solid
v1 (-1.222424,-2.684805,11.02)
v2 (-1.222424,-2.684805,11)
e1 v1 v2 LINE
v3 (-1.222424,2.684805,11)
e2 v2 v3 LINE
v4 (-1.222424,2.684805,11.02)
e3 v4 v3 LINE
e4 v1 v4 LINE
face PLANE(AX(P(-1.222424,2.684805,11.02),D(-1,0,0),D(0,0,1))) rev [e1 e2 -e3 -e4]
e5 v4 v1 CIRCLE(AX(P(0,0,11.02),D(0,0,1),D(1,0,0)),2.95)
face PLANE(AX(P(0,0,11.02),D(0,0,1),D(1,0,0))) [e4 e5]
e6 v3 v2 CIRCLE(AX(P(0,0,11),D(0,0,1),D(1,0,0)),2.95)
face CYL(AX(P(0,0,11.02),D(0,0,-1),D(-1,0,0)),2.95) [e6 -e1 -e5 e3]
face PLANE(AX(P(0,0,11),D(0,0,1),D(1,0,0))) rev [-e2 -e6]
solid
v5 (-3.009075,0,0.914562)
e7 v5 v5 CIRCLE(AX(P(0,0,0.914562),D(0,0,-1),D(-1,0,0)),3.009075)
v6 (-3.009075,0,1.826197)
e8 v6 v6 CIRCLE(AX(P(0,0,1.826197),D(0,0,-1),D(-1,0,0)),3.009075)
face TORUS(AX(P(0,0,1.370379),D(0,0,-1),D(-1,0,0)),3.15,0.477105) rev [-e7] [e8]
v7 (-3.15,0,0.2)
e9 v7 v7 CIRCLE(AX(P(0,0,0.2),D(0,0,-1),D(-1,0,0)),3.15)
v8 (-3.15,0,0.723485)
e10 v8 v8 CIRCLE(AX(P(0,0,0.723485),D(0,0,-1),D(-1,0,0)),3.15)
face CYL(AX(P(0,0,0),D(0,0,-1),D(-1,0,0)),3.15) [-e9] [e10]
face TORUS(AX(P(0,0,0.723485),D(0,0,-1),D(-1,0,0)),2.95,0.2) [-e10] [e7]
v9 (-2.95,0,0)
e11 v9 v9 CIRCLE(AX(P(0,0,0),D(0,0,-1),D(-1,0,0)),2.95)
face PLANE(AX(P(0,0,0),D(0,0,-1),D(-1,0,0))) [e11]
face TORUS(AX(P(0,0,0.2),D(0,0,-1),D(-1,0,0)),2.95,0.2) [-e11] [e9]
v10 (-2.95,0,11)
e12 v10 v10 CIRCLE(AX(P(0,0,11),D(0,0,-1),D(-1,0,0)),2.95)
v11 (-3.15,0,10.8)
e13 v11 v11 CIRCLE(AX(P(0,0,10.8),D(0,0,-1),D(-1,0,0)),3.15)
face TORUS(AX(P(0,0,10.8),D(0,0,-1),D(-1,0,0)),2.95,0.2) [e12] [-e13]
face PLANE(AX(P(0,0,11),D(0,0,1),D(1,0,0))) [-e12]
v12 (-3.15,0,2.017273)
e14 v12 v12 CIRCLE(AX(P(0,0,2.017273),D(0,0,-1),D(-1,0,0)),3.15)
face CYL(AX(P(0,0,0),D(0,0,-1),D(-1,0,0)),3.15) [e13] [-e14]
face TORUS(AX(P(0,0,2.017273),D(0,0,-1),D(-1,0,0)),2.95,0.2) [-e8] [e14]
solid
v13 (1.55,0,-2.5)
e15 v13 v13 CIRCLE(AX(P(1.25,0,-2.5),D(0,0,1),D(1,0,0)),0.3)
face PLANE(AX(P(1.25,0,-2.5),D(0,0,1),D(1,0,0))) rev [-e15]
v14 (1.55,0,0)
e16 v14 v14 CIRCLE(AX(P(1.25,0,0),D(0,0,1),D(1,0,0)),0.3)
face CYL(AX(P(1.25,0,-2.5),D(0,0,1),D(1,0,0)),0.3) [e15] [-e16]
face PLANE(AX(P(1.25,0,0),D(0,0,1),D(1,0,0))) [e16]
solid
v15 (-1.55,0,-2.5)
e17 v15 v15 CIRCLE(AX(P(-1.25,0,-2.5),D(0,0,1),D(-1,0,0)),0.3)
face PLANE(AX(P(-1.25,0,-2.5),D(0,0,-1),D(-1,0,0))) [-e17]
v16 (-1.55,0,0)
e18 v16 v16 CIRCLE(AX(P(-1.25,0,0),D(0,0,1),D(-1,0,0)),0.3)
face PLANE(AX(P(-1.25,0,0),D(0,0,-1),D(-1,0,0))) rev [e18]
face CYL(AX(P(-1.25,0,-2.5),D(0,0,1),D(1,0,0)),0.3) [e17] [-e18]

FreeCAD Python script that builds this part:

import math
import FreeCAD as App
import Part
import Sketcher
Q = App.Units.Quantity

doc = App.newDocument("Part")
body = doc.addObject("PartDesign::Body", "Body")

# Sketch on XZ plane
sketch1 = body.newObject("Sketcher::SketchObject", "Sketch")
sketch1.AttachmentSupport = (doc.getObject("XZ_Plane"), [""])
sketch1.MapMode = "FlatFace"
sketch1.addGeometry([
    Part.LineSegment(App.Vector(-3.15, 2.02, 0), App.Vector(-3.15, 10.8, 0)),  # 0
    Part.ArcOfCircle(Part.Circle(App.Vector(-2.95, 10.8, 0), App.Vector(0, 0, 1), 0.2), math.radians(90), math.radians(180)),  # 1
    Part.LineSegment(App.Vector(-2.95, 11, 0), App.Vector(0, 11, 0)),  # 2
    Part.LineSegment(App.Vector(0, 11, 0), App.Vector(0, 0, 0)),  # 3
    Part.LineSegment(App.Vector(0, 0, 0), App.Vector(-2.95, 0, 0)),  # 4
    Part.ArcOfCircle(Part.Circle(App.Vector(-2.95, 0.2, 0), App.Vector(0, 0, 1), 0.2), math.radians(-180), math.radians(-90)),  # 5
    Part.LineSegment(App.Vector(-3.15, 0.2, 0), App.Vector(-3.15, 0.72, 0)),  # 6
    Part.ArcOfCircle(Part.Circle(App.Vector(-2.95, 0.72, 0), App.Vector(0, 0, 1), 0.2), math.radians(107), math.radians(180)),  # 7
    Part.ArcOfCircle(Part.Circle(App.Vector(-3.15, 1.37, 0), App.Vector(0, 0, 1), 0.48), math.radians(-73), math.radians(73)),  # 8
    Part.ArcOfCircle(Part.Circle(App.Vector(-2.95, 2.02, 0), App.Vector(0, 0, 1), 0.2), math.radians(180), math.radians(253)),  # 9
], False)
sketch1.addConstraint([
    Sketcher.Constraint("Tangent", 0, 2, 1, 2),
    Sketcher.Constraint("Tangent", 1, 1, 2, 1),
    Sketcher.Constraint("Coincident", 2, 2, 3, 1),
    Sketcher.Constraint("Coincident", 3, 2, 4, 1),
    Sketcher.Constraint("Tangent", 4, 2, 5, 2),
    Sketcher.Constraint("Tangent", 5, 1, 6, 1),
    Sketcher.Constraint("Tangent", 6, 2, 7, 2),
    Sketcher.Constraint("Tangent", 7, 1, 8, 1),
    Sketcher.Constraint("Tangent", 8, 2, 9, 2),
    Sketcher.Constraint("Tangent", 9, 1, 0, 1),
    Sketcher.Constraint("Vertical", 0),
    Sketcher.Constraint("Horizontal", 2),
    Sketcher.Constraint("Vertical", 3),
    Sketcher.Constraint("Horizontal", 4),
    Sketcher.Constraint("Vertical", 6),
    Sketcher.Constraint("Coincident", 3, 2, -1, 1),
    Sketcher.Constraint("Equal", 1, 5),
    Sketcher.Constraint("Equal", 5, 7),
    Sketcher.Constraint("Equal", 7, 9),
    Sketcher.Constraint("Vertical", 1, 3, 5, 3),
    Sketcher.Constraint("Vertical", 8, 3, 0, 2),
    Sketcher.Constraint("Radius", 1, Q("0.2 mm")),
    Sketcher.Constraint("DistanceY", 3, 2, 3, 1, Q("11 mm")),
    Sketcher.Constraint("DistanceX", 2, 1, 2, 2, Q("2.95 mm")),
    Sketcher.Constraint("Radius", 8, Q("0.477105 mm")),
    Sketcher.Constraint("DistanceY", 0, 1, 0, 2, Q("8.782727 mm")),
])
revolution = body.newObject("PartDesign::Revolution", "Revolution")
revolution.Profile = sketch1
revolution.ReferenceAxis = (sketch1, ["V_Axis"])
revolution.Angle = 360
body2 = doc.addObject("PartDesign::Body", "Body001")

# Sketch on XY plane
sketch2 = body2.newObject("Sketcher::SketchObject", "Sketch001")
sketch2.AttachmentSupport = (doc.getObject("XY_Plane001"), [""])
sketch2.MapMode = "FlatFace"
sketch2.addGeometry(Part.Circle(App.Vector(1.25, 0, 0), App.Vector(0, 0, 1), 0.3), False)
sketch2.addConstraint([
    Sketcher.Constraint("PointOnObject", 0, 3, -1),
    Sketcher.Constraint("Diameter", 0, Q("0.6 mm")),
    Sketcher.Constraint("DistanceX", -1, 1, 0, 3, Q("1.25 mm")),
])
pad1 = body2.newObject("PartDesign::Pad", "Pad")
pad1.Profile = sketch2
pad1.Length = 2.5
pad1.Reversed = True
body3 = doc.addObject("PartDesign::Body", "Body002")

# Sketch on XY plane
sketch3 = body3.newObject("Sketcher::SketchObject", "Sketch002")
sketch3.AttachmentSupport = (doc.getObject("XY_Plane002"), [""])
sketch3.MapMode = "FlatFace"
sketch3.addGeometry(Part.Circle(App.Vector(-1.25, 0, 0), App.Vector(0, 0, 1), 0.3), False)
sketch3.addConstraint([
    Sketcher.Constraint("PointOnObject", 0, 3, -1),
    Sketcher.Constraint("Diameter", 0, Q("0.6 mm")),
    Sketcher.Constraint("DistanceX", 0, 3, -1, 1, Q("1.25 mm")),
])
pad2 = body3.newObject("PartDesign::Pad", "Pad001")
pad2.Profile = sketch3
pad2.Length = 2.5
pad2.Reversed = True
body4 = doc.addObject("PartDesign::Body", "Body003")

# Sketch on XY plane
sketch4 = body4.newObject("Sketcher::SketchObject", "Sketch003")
sketch4.AttachmentSupport = (doc.getObject("XY_Plane003"), [""])
sketch4.MapMode = "FlatFace"
sketch4.AttachmentOffset = App.Placement(App.Vector(0, 0, 11), App.Rotation())
sketch4.addGeometry([
    Part.LineSegment(App.Vector(-1.2, -2.7, 0), App.Vector(-1.2, 2.7, 0)),
    Part.ArcOfCircle(Part.Circle(App.Vector(0, 0, 0), App.Vector(0, 0, 1), 3), math.radians(114), math.radians(246)),
], False)
sketch4.addConstraint([
    Sketcher.Constraint("Coincident", 0, 1, 1, 2),
    Sketcher.Constraint("Coincident", 1, 1, 0, 2),
    Sketcher.Constraint("Vertical", 0),
    Sketcher.Constraint("Coincident", 1, 3, -1, 1),
    Sketcher.Constraint("Radius", 1, Q("2.95 mm")),
    Sketcher.Constraint("DistanceY", 0, 1, 0, 2, Q("5.369611 mm")),
])
pad3 = body4.newObject("PartDesign::Pad", "Pad002")
pad3.Profile = sketch4
pad3.Length = 0.02

doc.recompute()
